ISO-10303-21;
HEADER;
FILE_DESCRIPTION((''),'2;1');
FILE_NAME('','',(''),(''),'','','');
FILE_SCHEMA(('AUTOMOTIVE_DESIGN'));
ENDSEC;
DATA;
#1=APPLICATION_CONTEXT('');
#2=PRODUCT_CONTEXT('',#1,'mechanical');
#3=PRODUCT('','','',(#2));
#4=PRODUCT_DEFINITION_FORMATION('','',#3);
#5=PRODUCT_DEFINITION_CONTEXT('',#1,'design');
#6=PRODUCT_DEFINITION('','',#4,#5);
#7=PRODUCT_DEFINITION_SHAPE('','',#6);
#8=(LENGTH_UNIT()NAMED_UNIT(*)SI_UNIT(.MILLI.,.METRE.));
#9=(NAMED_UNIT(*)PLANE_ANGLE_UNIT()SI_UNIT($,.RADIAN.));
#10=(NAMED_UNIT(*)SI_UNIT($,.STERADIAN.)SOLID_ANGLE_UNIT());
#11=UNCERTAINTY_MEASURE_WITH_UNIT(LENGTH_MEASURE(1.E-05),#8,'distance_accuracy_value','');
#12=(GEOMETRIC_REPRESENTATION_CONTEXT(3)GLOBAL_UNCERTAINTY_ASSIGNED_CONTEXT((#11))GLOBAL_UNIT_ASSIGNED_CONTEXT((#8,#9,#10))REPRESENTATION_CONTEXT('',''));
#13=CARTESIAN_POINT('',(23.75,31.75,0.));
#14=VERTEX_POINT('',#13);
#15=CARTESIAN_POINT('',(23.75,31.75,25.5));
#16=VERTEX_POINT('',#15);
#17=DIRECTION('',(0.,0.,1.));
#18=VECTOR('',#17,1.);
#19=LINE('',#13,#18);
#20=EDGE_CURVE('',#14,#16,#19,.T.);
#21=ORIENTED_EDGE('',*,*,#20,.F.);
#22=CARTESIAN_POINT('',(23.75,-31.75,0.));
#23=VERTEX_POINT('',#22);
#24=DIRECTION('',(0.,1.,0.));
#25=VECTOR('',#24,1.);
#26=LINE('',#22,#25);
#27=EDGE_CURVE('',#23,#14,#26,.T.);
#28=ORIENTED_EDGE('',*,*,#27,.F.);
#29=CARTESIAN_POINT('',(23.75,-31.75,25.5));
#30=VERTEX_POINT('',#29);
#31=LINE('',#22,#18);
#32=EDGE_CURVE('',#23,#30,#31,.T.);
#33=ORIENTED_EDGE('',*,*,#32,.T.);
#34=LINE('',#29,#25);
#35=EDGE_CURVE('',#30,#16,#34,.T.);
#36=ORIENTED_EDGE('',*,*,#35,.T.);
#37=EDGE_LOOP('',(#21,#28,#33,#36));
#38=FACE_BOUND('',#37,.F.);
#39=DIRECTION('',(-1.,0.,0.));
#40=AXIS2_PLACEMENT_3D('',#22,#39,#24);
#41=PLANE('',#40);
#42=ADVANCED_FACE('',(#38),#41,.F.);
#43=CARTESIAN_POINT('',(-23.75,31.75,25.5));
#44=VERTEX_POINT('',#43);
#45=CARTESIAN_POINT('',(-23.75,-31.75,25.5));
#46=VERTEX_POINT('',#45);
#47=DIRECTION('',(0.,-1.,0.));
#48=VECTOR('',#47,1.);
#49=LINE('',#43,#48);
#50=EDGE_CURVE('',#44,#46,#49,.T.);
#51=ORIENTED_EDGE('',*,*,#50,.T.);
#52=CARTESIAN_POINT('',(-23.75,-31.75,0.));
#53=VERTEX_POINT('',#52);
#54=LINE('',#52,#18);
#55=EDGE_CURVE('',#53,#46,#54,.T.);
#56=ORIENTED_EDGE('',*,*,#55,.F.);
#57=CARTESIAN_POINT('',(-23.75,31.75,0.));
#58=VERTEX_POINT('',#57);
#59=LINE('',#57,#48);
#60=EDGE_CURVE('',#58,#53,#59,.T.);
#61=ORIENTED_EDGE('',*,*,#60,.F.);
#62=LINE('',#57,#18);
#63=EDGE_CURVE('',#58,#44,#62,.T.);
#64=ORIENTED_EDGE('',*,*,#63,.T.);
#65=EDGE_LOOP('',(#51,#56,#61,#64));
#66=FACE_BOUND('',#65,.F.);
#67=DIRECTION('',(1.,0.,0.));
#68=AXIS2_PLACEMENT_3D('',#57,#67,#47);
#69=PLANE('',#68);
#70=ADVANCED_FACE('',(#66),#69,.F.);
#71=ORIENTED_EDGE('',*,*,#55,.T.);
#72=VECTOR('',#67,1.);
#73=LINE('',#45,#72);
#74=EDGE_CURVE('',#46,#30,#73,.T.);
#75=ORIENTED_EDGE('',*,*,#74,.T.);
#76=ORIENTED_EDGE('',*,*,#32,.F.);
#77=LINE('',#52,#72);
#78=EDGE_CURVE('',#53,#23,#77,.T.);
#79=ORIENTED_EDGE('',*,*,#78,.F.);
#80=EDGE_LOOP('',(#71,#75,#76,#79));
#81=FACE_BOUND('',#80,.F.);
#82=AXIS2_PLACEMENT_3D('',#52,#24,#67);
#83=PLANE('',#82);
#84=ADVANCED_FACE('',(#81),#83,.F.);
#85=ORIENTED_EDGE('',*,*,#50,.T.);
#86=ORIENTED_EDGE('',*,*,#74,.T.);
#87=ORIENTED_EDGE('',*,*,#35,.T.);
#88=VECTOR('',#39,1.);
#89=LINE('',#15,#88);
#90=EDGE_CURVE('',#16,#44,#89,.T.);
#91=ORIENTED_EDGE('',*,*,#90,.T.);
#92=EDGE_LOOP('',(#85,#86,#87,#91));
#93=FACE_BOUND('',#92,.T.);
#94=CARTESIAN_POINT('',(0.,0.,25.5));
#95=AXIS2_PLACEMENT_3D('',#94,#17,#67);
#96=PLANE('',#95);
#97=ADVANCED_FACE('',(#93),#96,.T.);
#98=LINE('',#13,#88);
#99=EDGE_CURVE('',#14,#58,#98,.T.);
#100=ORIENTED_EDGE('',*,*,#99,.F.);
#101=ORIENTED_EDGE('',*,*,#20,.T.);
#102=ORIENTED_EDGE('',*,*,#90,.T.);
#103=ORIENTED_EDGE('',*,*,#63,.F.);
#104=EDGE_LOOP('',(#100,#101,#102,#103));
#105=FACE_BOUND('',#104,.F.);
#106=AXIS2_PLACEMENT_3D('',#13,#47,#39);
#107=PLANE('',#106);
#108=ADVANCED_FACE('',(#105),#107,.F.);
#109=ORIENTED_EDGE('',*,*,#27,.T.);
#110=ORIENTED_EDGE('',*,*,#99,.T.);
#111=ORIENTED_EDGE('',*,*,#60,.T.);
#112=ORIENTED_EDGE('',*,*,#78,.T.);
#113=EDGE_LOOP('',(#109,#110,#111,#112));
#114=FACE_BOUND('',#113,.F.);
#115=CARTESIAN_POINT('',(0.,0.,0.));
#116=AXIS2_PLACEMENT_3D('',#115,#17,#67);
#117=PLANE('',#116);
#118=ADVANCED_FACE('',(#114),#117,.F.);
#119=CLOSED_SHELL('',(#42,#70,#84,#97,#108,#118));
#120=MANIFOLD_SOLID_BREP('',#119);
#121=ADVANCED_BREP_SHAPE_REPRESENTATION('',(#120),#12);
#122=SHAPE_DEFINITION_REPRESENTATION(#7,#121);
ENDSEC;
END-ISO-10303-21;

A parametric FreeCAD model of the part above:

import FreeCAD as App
import Part
import Sketcher

V = App.Vector
Q = App.Units.Quantity

doc = App.newDocument("Part")
body = doc.addObject("PartDesign::Body", "Body")

# Sketch on XY plane
sketch1 = body.newObject("Sketcher::SketchObject", "Sketch")
sketch1.AttachmentSupport = (doc.getObject("XY_Plane"), [""])
sketch1.MapMode = "FlatFace"
sketch1.addGeometry([
    Part.LineSegment(V(-24, -32, 0), V(24, -32, 0)),
    Part.LineSegment(V(24, -32, 0), V(24, 32, 0)),
    Part.LineSegment(V(24, 32, 0), V(-24, 32, 0)),
    Part.LineSegment(V(-24, 32, 0), V(-24, -32, 0)),
], False)
sketch1.addConstraint([
    Sketcher.Constraint("Coincident", 0, 2, 1, 1),
    Sketcher.Constraint("Coincident", 1, 2, 2, 1),
    Sketcher.Constraint("Coincident", 2, 2, 3, 1),
    Sketcher.Constraint("Coincident", 3, 2, 0, 1),
    Sketcher.Constraint("Horizontal", 0),
    Sketcher.Constraint("Vertical", 1),
    Sketcher.Constraint("Horizontal", 2),
    Sketcher.Constraint("Vertical", 3),
    Sketcher.Constraint("Symmetric", 0, 2, 2, 2, -1, 1),
    Sketcher.Constraint("DistanceX", 0, 1, 0, 2, Q("47.5 mm")),
    Sketcher.Constraint("DistanceY", 1, 1, 1, 2, Q("63.5 mm")),
])
pad1 = body.newObject("PartDesign::Pad", "Pad")
pad1.Profile = sketch1
pad1.Length = 25.5

doc.recompute()
